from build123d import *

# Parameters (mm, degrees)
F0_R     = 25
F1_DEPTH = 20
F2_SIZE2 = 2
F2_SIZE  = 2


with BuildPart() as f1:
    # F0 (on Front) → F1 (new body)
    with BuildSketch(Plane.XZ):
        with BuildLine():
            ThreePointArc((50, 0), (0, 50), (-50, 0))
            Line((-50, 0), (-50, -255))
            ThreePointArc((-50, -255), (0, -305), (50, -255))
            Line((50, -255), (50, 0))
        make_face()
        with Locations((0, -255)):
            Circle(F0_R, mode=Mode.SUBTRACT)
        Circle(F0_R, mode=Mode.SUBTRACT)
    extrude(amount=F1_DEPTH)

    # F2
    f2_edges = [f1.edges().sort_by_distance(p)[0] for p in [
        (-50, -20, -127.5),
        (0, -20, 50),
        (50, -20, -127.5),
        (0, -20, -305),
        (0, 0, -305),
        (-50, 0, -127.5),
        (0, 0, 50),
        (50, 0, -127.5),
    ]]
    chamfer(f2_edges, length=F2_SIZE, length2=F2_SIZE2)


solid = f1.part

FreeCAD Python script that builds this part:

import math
import FreeCAD as App
import Part
import Sketcher

V = App.Vector


def edges_at(feature, points):
    """Names of the edges that pass closest to the given points."""
    edges = feature.Shape.Edges
    near = lambda p: min(range(len(edges)), key=lambda i: edges[i].distToShape(Part.Vertex(*p))[0])
    return sorted({f"Edge{near(p) + 1}" for p in points})

doc = App.newDocument("Part")
params = doc.addObject("Spreadsheet::Sheet", "Params")
for row, (alias, value) in enumerate([
    ("sketch1_diameter", "50 mm"),
    ("sketch1_radius", "50 mm"),
    ("sketch1_height", "255 mm"),
    ("pad1_length", "20 mm"),
    ("chamfer_size", "2 mm"),
    ("chamfer_size2", "2 mm"),
], start=1):
    params.set(f"A{row}", alias)
    params.set(f"B{row}", "=" + value)
    params.setAlias(f"B{row}", alias)

body = doc.addObject("PartDesign::Body", "Body")

# Sketch on XZ plane
sketch1 = doc.addObject("Sketcher::SketchObject", "Sketch")
body.addObject(sketch1)
sketch1.AttachmentSupport = (doc.XZ_Plane, [""])
sketch1.MapMode = "FlatFace"
sketch1.addGeometry([
    Part.ArcOfCircle(Part.Circle(V(0, 0, 0), V(0, 0, 1), 50), math.radians(0), math.radians(180)),  # 0
    Part.LineSegment(V(-50, 0, 0), V(-50, -255, 0)),  # 1
    Part.ArcOfCircle(Part.Circle(V(0, -255, 0), V(0, 0, 1), 50), math.radians(180), math.radians(360)),  # 2
    Part.LineSegment(V(50, -255, 0), V(50, 0, 0)),  # 3
    Part.Circle(V(0, -255, 0), V(0, 0, 1), 25),  # 4
    Part.Circle(V(0, 0, 0), V(0, 0, 1), 25),  # 5
], False)
sketch1.addConstraint([
    Sketcher.Constraint("Tangent", 0, 2, 1, 1),
    Sketcher.Constraint("Tangent", 1, 2, 2, 1),
    Sketcher.Constraint("Tangent", 2, 2, 3, 1),
    Sketcher.Constraint("Tangent", 3, 2, 0, 1),
    Sketcher.Constraint("Vertical", 1),
    Sketcher.Constraint("Vertical", 3),
    Sketcher.Constraint("Coincident", 0, 3, -1, 1),
    Sketcher.Constraint("Coincident", 5, 3, -1, 1),
    Sketcher.Constraint("Coincident", 4, 3, 2, 3),
    Sketcher.Constraint("Equal", 4, 5),
    Sketcher.Constraint("Diameter", 4, 50.0),
    Sketcher.Constraint("Radius", 0, 50.0),
    Sketcher.Constraint("DistanceY", 1, 2, 1, 1, 255.0),
])
sketch1.setExpression("Constraints[10]", "Params.sketch1_diameter")
sketch1.setExpression("Constraints[11]", "Params.sketch1_radius")
sketch1.setExpression("Constraints[12]", "Params.sketch1_height")
pad1 = doc.addObject("PartDesign::Pad", "Pad")
body.addObject(pad1)
pad1.Profile = sketch1
pad1.setExpression("Length", "Params.pad1_length")
doc.recompute()

chamfer = doc.addObject("PartDesign::Chamfer", "Chamfer")
body.addObject(chamfer)
chamfer.Base = (pad1, edges_at(pad1, [
    (-50, -20, -127.5),
    (0, -20, 50),
    (50, -20, -127.5),
    (0, -20, -305),
    (0, 0, -305),
    (-50, 0, -127.5),
    (0, 0, 50),
    (50, 0, -127.5),
]))
chamfer.ChamferType = "Two distances"
chamfer.setExpression("Size", "Params.chamfer_size")
chamfer.setExpression("Size2", "Params.chamfer_size2")

doc.recompute()
